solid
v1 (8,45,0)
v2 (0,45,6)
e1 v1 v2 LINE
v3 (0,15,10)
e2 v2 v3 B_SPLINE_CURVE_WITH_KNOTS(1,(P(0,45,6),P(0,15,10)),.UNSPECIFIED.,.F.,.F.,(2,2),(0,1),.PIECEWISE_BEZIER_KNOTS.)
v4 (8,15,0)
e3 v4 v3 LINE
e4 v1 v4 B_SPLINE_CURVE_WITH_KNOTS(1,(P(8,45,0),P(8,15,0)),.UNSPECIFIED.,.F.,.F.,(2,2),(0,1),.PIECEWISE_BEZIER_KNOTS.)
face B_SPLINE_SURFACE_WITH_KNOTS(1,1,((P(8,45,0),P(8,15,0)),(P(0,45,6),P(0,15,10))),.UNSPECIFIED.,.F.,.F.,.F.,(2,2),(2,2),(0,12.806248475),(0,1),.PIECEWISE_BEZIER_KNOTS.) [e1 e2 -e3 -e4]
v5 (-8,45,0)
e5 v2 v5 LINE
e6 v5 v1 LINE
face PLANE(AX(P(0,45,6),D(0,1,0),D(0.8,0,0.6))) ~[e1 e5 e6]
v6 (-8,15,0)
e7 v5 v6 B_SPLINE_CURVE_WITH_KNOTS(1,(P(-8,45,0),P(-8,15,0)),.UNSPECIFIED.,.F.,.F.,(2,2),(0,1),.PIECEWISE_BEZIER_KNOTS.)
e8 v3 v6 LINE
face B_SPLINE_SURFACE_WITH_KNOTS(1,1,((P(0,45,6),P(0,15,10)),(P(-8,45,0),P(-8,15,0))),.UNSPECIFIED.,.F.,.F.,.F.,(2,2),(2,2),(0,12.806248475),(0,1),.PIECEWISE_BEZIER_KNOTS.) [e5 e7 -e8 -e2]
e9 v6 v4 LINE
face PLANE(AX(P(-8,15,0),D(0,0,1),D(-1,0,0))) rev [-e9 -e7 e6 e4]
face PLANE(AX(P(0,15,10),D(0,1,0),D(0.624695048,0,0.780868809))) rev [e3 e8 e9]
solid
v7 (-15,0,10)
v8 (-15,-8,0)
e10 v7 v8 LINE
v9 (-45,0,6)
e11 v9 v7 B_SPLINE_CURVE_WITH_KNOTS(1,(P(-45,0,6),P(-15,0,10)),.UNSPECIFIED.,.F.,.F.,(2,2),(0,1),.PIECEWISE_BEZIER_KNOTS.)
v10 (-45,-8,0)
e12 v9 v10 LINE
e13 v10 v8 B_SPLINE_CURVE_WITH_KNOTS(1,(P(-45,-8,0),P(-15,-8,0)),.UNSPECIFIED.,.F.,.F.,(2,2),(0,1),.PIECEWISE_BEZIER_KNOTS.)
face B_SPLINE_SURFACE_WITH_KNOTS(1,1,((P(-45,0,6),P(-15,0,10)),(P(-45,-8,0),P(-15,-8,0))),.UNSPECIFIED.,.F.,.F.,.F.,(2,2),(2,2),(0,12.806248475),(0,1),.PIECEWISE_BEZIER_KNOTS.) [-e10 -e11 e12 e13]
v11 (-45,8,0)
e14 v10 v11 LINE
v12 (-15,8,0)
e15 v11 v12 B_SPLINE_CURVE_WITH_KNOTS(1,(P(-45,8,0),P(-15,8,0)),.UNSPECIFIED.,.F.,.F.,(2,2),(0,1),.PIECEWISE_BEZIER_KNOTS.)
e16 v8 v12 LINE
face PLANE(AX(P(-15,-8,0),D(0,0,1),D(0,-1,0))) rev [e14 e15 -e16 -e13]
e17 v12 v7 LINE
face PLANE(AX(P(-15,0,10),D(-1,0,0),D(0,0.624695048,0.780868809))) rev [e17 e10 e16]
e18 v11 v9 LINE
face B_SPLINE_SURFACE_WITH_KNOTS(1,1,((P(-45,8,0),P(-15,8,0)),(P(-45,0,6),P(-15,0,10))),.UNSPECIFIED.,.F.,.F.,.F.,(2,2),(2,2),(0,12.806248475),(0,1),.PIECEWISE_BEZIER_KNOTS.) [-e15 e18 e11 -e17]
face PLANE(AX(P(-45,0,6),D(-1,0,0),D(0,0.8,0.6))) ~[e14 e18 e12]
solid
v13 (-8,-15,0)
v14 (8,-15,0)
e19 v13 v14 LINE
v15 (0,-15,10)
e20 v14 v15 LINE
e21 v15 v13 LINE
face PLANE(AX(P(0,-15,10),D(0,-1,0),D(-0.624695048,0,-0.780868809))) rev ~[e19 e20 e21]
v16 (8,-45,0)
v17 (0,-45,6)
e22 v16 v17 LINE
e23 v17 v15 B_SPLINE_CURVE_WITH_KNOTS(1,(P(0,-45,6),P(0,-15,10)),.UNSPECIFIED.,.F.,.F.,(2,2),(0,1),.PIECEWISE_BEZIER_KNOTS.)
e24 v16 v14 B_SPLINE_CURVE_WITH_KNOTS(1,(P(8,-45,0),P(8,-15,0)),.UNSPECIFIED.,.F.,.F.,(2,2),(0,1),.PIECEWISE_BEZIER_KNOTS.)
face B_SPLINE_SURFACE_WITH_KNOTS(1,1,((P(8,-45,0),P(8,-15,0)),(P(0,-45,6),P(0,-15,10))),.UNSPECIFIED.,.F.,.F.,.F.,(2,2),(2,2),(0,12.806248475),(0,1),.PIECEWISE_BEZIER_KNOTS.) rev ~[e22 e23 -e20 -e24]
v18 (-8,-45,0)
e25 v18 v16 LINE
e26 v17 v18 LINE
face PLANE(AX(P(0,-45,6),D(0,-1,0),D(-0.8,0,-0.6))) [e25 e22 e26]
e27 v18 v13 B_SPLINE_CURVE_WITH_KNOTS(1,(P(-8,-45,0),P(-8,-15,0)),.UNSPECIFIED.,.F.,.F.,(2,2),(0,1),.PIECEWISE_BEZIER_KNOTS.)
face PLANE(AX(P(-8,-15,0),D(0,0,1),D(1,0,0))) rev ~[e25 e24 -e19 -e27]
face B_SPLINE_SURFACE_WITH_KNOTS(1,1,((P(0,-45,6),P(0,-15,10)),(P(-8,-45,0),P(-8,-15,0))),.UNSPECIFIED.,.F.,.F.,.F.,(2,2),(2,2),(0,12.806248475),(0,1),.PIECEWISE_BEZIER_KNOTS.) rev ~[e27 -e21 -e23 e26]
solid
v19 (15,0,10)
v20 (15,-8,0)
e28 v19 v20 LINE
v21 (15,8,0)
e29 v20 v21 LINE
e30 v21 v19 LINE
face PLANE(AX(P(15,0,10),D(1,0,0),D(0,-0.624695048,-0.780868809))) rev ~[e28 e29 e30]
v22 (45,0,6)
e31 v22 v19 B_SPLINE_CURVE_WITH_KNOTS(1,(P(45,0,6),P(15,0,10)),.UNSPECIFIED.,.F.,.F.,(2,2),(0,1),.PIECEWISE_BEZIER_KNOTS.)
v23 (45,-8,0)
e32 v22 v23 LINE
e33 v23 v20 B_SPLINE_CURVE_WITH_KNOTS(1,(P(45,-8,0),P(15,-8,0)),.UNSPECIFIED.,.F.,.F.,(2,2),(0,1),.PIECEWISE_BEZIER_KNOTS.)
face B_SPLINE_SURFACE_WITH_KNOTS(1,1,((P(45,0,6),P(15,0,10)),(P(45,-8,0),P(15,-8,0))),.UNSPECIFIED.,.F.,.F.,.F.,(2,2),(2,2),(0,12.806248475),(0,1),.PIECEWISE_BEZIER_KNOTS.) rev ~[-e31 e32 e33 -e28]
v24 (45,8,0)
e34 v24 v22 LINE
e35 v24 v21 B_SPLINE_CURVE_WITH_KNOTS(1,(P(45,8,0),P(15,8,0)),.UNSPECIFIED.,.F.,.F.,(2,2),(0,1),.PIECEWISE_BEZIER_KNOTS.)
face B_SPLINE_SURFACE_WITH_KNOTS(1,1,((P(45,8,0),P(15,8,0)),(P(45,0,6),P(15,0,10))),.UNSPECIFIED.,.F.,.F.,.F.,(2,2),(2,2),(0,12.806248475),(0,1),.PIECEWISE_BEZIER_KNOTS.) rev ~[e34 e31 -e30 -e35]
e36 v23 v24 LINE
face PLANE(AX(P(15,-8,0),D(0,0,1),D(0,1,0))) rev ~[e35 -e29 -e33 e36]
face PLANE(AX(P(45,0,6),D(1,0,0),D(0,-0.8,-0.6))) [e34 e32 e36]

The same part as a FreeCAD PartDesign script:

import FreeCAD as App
import Part
import Sketcher

V = App.Vector

doc = App.newDocument("Part")
body = doc.addObject("PartDesign::Body", "Body")

# Sketch on XZ plane
sketch1 = doc.addObject("Sketcher::SketchObject", "Sketch")
body.addObject(sketch1)
sketch1.AttachmentSupport = (doc.XZ_Plane, [""])
sketch1.MapMode = "FlatFace"
sketch1.AttachmentOffset = App.Placement(V(0, 0, 45), App.Rotation())
sketch1.addGeometry(Part.LineSegment(V(0, 6, 0), V(-8, 0, 0)), False)
sketch1.addGeometry(Part.LineSegment(V(-8, 0, 0), V(8, 0, 0)), False)
sketch1.addGeometry(Part.LineSegment(V(8, 0, 0), V(0, 6, 0)), False)
sketch1.addConstraint(Sketcher.Constraint("Coincident", 0, 2, 1, 1))
sketch1.addConstraint(Sketcher.Constraint("Coincident", 1, 2, 2, 1))
sketch1.addConstraint(Sketcher.Constraint("Coincident", 2, 2, 0, 1))
sketch1.addConstraint(Sketcher.Constraint("Horizontal", 1))
sketch1.addConstraint(Sketcher.Constraint("Symmetric", 0, 2, 1, 2, -1, 1))
sketch1.addConstraint(Sketcher.Constraint("PointOnObject", 2, 2, -2))
sketch1.addConstraint(Sketcher.Constraint("DistanceX", 1, 1, 1, 2, 16.0))
sketch1.addConstraint(Sketcher.Constraint("Distance", 0, 10.0))

# Sketch on XZ plane
sketch2 = doc.addObject("Sketcher::SketchObject", "Sketch001")
body.addObject(sketch2)
sketch2.AttachmentSupport = (doc.XZ_Plane, [""])
sketch2.MapMode = "FlatFace"
sketch2.AttachmentOffset = App.Placement(V(0, 0, 15), App.Rotation())
sketch2.addGeometry(Part.LineSegment(V(0, 10, 0), V(-8, 0, 0)), False)
sketch2.addGeometry(Part.LineSegment(V(-8, 0, 0), V(8, 0, 0)), False)
sketch2.addGeometry(Part.LineSegment(V(8, 0, 0), V(0, 10, 0)), False)
sketch2.addConstraint(Sketcher.Constraint("Coincident", 0, 2, 1, 1))
sketch2.addConstraint(Sketcher.Constraint("Coincident", 1, 2, 2, 1))
sketch2.addConstraint(Sketcher.Constraint("Coincident", 2, 2, 0, 1))
sketch2.addConstraint(Sketcher.Constraint("Horizontal", 1))
sketch2.addConstraint(Sketcher.Constraint("Symmetric", 0, 2, 1, 2, -1, 1))
sketch2.addConstraint(Sketcher.Constraint("PointOnObject", 2, 2, -2))
sketch2.addConstraint(Sketcher.Constraint("DistanceX", 1, 1, 1, 2, 16.0))
sketch2.addConstraint(Sketcher.Constraint("DistanceY", -1, 1, 2, 2, 10.0))

additiveloft = doc.addObject("PartDesign::AdditiveLoft", "AdditiveLoft")
body.addObject(additiveloft)
additiveloft.Profile = sketch1
additiveloft.Sections = [sketch2]
body2 = doc.addObject("PartDesign::Body", "Body001")
doc.recompute()

mirroring = doc.addObject("Part::Mirroring", "Mirroring")
mirroring.Source = body
mirroring.Base = V(0, 0, 0)
mirroring.Normal = V(0, -1, 0)
body2.BaseFeature = mirroring
doc.recompute()
body3 = doc.addObject("PartDesign::Body", "Body002")
doc.recompute()

mirroring2 = doc.addObject("Part::Mirroring", "Mirroring001")
mirroring2.Source = body
mirroring2.Base = V(0, 0, 0)
mirroring2.Normal = V(-0.707106781, 0.707106781, 0)
body3.BaseFeature = mirroring2
doc.recompute()
body4 = doc.addObject("PartDesign::Body", "Body003")
doc.recompute()

mirroring3 = doc.addObject("Part::Mirroring", "Mirroring002")
mirroring3.Source = body2
mirroring3.Base = V(0, 0, 0)
mirroring3.Normal = V(-0.707106781, 0.707106781, 0)
body4.BaseFeature = mirroring3
doc.recompute()
mirroring.Visibility = False
mirroring2.Visibility = False
mirroring3.Visibility = False

doc.recompute()
